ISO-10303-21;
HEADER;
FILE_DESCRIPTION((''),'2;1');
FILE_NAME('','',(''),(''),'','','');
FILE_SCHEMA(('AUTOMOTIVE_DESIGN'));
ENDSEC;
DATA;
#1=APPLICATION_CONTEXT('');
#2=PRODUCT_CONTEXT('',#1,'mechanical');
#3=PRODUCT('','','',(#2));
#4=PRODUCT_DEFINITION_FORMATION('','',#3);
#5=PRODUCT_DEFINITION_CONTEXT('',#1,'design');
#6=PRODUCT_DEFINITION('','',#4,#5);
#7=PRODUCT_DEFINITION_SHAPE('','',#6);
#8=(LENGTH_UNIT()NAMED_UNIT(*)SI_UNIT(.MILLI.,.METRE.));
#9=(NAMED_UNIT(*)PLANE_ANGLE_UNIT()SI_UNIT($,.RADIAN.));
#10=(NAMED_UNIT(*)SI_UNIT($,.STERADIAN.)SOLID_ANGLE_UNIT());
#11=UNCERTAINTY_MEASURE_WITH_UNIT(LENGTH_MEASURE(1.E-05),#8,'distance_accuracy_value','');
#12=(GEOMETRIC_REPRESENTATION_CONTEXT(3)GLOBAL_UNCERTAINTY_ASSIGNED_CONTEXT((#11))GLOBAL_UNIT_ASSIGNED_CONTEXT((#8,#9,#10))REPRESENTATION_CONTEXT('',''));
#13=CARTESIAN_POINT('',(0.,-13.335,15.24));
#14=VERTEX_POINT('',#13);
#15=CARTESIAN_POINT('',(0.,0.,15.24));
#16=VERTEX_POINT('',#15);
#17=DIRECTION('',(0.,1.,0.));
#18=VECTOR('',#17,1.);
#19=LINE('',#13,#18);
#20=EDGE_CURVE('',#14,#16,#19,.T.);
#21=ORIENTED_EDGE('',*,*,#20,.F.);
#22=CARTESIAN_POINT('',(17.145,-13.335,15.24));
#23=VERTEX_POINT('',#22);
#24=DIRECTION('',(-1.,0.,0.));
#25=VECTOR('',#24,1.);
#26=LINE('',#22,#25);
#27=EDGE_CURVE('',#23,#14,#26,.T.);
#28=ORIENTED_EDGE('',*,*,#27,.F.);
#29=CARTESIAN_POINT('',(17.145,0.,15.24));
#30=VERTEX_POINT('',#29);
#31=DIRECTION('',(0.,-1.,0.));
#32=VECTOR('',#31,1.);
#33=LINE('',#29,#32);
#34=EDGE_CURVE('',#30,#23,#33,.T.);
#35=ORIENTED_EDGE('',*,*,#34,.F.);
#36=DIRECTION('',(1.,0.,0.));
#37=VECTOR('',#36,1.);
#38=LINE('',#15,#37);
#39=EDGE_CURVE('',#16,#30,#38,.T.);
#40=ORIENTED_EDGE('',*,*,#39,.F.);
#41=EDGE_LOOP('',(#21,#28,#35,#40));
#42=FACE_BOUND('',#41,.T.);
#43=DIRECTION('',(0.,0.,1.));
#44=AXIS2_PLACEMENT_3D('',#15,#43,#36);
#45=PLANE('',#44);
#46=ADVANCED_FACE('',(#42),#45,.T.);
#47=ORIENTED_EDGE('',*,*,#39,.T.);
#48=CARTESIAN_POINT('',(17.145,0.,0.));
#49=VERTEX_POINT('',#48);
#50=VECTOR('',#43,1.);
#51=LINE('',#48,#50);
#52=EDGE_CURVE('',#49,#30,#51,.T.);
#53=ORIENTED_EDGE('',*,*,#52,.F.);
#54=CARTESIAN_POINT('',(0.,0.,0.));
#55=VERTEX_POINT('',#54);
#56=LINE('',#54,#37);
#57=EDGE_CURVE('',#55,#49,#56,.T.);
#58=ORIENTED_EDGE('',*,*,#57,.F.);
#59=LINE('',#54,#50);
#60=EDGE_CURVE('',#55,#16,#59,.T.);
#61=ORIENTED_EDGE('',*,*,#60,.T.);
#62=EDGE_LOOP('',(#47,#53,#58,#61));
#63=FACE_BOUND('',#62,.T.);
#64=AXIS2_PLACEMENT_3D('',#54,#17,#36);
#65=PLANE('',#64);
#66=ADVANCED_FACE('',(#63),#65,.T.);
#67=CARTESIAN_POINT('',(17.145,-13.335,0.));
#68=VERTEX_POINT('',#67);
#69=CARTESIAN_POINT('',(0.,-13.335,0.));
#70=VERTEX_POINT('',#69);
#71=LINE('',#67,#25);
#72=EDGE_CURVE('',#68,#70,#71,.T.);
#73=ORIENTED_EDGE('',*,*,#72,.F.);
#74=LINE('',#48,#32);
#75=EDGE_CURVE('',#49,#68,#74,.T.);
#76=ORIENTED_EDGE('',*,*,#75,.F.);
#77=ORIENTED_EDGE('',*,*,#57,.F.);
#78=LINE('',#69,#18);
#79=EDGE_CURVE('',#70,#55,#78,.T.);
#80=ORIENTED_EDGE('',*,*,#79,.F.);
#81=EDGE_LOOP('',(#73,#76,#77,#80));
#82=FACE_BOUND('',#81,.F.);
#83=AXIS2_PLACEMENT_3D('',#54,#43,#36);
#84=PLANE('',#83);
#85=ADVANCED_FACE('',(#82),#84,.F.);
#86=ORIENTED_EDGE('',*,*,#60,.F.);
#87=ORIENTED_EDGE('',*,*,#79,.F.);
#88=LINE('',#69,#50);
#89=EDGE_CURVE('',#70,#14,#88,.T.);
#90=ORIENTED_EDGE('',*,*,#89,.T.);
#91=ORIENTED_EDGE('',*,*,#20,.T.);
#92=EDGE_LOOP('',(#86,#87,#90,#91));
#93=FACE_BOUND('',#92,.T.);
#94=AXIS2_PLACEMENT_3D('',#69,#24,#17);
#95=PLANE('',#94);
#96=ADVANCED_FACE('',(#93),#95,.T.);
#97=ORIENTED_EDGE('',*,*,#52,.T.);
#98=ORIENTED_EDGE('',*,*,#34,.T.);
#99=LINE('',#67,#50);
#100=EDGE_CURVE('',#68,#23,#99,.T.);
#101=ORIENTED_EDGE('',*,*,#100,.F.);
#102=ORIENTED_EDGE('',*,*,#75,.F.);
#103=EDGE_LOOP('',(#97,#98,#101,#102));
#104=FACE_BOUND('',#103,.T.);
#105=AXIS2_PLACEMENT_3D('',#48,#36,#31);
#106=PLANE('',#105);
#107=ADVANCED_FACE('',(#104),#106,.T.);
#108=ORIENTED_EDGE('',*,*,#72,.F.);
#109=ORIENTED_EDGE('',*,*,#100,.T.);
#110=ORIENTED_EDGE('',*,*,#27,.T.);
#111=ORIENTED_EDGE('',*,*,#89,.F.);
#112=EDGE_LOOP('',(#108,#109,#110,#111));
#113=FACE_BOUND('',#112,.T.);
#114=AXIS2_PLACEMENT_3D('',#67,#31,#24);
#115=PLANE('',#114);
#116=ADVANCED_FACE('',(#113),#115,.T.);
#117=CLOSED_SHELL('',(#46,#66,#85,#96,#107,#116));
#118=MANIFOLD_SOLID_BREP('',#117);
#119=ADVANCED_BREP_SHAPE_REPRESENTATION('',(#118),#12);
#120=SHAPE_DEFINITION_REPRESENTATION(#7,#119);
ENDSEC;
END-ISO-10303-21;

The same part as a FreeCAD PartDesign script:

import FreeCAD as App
import Part
import Sketcher
Q = App.Units.Quantity


def add_polygon(sketch, points):
    """Adds a closed chain of lines whose ends are joined by coincident constraints."""
    first, n = sketch.GeometryCount, len(points)
    for a, b in zip(points, points[1:] + points[:1]):
        sketch.addGeometry(Part.LineSegment(App.Vector(*a, 0), App.Vector(*b, 0)), False)
    for i in range(n):
        sketch.addConstraint(Sketcher.Constraint("Coincident", first + i, 2, first + (i + 1) % n, 1))

doc = App.newDocument("Part")
body = doc.addObject("PartDesign::Body", "Body")

# Sketch on XY plane
sketch1 = body.newObject("Sketcher::SketchObject", "Sketch")
sketch1.AttachmentSupport = (doc.getObject("XY_Plane"), [""])
sketch1.MapMode = "FlatFace"
add_polygon(sketch1, [(17, 0), (0, 0), (0, -13), (17, -13)])  # lines 0-3
sketch1.addConstraint(Sketcher.Constraint("Horizontal", 0))
sketch1.addConstraint(Sketcher.Constraint("Vertical", 1))
sketch1.addConstraint(Sketcher.Constraint("Horizontal", 2))
sketch1.addConstraint(Sketcher.Constraint("Vertical", 3))
sketch1.addConstraint(Sketcher.Constraint("Coincident", 0, 2, -1, 1))
sketch1.addConstraint(Sketcher.Constraint("DistanceX", 0, 2, 0, 1, Q("0.675 in")))
sketch1.addConstraint(Sketcher.Constraint("DistanceY", 1, 2, 1, 1, Q("0.525 in")))
pad1 = body.newObject("PartDesign::Pad", "Pad")
pad1.Profile = sketch1
pad1.Length = Q("0.6 in")

doc.recompute()
